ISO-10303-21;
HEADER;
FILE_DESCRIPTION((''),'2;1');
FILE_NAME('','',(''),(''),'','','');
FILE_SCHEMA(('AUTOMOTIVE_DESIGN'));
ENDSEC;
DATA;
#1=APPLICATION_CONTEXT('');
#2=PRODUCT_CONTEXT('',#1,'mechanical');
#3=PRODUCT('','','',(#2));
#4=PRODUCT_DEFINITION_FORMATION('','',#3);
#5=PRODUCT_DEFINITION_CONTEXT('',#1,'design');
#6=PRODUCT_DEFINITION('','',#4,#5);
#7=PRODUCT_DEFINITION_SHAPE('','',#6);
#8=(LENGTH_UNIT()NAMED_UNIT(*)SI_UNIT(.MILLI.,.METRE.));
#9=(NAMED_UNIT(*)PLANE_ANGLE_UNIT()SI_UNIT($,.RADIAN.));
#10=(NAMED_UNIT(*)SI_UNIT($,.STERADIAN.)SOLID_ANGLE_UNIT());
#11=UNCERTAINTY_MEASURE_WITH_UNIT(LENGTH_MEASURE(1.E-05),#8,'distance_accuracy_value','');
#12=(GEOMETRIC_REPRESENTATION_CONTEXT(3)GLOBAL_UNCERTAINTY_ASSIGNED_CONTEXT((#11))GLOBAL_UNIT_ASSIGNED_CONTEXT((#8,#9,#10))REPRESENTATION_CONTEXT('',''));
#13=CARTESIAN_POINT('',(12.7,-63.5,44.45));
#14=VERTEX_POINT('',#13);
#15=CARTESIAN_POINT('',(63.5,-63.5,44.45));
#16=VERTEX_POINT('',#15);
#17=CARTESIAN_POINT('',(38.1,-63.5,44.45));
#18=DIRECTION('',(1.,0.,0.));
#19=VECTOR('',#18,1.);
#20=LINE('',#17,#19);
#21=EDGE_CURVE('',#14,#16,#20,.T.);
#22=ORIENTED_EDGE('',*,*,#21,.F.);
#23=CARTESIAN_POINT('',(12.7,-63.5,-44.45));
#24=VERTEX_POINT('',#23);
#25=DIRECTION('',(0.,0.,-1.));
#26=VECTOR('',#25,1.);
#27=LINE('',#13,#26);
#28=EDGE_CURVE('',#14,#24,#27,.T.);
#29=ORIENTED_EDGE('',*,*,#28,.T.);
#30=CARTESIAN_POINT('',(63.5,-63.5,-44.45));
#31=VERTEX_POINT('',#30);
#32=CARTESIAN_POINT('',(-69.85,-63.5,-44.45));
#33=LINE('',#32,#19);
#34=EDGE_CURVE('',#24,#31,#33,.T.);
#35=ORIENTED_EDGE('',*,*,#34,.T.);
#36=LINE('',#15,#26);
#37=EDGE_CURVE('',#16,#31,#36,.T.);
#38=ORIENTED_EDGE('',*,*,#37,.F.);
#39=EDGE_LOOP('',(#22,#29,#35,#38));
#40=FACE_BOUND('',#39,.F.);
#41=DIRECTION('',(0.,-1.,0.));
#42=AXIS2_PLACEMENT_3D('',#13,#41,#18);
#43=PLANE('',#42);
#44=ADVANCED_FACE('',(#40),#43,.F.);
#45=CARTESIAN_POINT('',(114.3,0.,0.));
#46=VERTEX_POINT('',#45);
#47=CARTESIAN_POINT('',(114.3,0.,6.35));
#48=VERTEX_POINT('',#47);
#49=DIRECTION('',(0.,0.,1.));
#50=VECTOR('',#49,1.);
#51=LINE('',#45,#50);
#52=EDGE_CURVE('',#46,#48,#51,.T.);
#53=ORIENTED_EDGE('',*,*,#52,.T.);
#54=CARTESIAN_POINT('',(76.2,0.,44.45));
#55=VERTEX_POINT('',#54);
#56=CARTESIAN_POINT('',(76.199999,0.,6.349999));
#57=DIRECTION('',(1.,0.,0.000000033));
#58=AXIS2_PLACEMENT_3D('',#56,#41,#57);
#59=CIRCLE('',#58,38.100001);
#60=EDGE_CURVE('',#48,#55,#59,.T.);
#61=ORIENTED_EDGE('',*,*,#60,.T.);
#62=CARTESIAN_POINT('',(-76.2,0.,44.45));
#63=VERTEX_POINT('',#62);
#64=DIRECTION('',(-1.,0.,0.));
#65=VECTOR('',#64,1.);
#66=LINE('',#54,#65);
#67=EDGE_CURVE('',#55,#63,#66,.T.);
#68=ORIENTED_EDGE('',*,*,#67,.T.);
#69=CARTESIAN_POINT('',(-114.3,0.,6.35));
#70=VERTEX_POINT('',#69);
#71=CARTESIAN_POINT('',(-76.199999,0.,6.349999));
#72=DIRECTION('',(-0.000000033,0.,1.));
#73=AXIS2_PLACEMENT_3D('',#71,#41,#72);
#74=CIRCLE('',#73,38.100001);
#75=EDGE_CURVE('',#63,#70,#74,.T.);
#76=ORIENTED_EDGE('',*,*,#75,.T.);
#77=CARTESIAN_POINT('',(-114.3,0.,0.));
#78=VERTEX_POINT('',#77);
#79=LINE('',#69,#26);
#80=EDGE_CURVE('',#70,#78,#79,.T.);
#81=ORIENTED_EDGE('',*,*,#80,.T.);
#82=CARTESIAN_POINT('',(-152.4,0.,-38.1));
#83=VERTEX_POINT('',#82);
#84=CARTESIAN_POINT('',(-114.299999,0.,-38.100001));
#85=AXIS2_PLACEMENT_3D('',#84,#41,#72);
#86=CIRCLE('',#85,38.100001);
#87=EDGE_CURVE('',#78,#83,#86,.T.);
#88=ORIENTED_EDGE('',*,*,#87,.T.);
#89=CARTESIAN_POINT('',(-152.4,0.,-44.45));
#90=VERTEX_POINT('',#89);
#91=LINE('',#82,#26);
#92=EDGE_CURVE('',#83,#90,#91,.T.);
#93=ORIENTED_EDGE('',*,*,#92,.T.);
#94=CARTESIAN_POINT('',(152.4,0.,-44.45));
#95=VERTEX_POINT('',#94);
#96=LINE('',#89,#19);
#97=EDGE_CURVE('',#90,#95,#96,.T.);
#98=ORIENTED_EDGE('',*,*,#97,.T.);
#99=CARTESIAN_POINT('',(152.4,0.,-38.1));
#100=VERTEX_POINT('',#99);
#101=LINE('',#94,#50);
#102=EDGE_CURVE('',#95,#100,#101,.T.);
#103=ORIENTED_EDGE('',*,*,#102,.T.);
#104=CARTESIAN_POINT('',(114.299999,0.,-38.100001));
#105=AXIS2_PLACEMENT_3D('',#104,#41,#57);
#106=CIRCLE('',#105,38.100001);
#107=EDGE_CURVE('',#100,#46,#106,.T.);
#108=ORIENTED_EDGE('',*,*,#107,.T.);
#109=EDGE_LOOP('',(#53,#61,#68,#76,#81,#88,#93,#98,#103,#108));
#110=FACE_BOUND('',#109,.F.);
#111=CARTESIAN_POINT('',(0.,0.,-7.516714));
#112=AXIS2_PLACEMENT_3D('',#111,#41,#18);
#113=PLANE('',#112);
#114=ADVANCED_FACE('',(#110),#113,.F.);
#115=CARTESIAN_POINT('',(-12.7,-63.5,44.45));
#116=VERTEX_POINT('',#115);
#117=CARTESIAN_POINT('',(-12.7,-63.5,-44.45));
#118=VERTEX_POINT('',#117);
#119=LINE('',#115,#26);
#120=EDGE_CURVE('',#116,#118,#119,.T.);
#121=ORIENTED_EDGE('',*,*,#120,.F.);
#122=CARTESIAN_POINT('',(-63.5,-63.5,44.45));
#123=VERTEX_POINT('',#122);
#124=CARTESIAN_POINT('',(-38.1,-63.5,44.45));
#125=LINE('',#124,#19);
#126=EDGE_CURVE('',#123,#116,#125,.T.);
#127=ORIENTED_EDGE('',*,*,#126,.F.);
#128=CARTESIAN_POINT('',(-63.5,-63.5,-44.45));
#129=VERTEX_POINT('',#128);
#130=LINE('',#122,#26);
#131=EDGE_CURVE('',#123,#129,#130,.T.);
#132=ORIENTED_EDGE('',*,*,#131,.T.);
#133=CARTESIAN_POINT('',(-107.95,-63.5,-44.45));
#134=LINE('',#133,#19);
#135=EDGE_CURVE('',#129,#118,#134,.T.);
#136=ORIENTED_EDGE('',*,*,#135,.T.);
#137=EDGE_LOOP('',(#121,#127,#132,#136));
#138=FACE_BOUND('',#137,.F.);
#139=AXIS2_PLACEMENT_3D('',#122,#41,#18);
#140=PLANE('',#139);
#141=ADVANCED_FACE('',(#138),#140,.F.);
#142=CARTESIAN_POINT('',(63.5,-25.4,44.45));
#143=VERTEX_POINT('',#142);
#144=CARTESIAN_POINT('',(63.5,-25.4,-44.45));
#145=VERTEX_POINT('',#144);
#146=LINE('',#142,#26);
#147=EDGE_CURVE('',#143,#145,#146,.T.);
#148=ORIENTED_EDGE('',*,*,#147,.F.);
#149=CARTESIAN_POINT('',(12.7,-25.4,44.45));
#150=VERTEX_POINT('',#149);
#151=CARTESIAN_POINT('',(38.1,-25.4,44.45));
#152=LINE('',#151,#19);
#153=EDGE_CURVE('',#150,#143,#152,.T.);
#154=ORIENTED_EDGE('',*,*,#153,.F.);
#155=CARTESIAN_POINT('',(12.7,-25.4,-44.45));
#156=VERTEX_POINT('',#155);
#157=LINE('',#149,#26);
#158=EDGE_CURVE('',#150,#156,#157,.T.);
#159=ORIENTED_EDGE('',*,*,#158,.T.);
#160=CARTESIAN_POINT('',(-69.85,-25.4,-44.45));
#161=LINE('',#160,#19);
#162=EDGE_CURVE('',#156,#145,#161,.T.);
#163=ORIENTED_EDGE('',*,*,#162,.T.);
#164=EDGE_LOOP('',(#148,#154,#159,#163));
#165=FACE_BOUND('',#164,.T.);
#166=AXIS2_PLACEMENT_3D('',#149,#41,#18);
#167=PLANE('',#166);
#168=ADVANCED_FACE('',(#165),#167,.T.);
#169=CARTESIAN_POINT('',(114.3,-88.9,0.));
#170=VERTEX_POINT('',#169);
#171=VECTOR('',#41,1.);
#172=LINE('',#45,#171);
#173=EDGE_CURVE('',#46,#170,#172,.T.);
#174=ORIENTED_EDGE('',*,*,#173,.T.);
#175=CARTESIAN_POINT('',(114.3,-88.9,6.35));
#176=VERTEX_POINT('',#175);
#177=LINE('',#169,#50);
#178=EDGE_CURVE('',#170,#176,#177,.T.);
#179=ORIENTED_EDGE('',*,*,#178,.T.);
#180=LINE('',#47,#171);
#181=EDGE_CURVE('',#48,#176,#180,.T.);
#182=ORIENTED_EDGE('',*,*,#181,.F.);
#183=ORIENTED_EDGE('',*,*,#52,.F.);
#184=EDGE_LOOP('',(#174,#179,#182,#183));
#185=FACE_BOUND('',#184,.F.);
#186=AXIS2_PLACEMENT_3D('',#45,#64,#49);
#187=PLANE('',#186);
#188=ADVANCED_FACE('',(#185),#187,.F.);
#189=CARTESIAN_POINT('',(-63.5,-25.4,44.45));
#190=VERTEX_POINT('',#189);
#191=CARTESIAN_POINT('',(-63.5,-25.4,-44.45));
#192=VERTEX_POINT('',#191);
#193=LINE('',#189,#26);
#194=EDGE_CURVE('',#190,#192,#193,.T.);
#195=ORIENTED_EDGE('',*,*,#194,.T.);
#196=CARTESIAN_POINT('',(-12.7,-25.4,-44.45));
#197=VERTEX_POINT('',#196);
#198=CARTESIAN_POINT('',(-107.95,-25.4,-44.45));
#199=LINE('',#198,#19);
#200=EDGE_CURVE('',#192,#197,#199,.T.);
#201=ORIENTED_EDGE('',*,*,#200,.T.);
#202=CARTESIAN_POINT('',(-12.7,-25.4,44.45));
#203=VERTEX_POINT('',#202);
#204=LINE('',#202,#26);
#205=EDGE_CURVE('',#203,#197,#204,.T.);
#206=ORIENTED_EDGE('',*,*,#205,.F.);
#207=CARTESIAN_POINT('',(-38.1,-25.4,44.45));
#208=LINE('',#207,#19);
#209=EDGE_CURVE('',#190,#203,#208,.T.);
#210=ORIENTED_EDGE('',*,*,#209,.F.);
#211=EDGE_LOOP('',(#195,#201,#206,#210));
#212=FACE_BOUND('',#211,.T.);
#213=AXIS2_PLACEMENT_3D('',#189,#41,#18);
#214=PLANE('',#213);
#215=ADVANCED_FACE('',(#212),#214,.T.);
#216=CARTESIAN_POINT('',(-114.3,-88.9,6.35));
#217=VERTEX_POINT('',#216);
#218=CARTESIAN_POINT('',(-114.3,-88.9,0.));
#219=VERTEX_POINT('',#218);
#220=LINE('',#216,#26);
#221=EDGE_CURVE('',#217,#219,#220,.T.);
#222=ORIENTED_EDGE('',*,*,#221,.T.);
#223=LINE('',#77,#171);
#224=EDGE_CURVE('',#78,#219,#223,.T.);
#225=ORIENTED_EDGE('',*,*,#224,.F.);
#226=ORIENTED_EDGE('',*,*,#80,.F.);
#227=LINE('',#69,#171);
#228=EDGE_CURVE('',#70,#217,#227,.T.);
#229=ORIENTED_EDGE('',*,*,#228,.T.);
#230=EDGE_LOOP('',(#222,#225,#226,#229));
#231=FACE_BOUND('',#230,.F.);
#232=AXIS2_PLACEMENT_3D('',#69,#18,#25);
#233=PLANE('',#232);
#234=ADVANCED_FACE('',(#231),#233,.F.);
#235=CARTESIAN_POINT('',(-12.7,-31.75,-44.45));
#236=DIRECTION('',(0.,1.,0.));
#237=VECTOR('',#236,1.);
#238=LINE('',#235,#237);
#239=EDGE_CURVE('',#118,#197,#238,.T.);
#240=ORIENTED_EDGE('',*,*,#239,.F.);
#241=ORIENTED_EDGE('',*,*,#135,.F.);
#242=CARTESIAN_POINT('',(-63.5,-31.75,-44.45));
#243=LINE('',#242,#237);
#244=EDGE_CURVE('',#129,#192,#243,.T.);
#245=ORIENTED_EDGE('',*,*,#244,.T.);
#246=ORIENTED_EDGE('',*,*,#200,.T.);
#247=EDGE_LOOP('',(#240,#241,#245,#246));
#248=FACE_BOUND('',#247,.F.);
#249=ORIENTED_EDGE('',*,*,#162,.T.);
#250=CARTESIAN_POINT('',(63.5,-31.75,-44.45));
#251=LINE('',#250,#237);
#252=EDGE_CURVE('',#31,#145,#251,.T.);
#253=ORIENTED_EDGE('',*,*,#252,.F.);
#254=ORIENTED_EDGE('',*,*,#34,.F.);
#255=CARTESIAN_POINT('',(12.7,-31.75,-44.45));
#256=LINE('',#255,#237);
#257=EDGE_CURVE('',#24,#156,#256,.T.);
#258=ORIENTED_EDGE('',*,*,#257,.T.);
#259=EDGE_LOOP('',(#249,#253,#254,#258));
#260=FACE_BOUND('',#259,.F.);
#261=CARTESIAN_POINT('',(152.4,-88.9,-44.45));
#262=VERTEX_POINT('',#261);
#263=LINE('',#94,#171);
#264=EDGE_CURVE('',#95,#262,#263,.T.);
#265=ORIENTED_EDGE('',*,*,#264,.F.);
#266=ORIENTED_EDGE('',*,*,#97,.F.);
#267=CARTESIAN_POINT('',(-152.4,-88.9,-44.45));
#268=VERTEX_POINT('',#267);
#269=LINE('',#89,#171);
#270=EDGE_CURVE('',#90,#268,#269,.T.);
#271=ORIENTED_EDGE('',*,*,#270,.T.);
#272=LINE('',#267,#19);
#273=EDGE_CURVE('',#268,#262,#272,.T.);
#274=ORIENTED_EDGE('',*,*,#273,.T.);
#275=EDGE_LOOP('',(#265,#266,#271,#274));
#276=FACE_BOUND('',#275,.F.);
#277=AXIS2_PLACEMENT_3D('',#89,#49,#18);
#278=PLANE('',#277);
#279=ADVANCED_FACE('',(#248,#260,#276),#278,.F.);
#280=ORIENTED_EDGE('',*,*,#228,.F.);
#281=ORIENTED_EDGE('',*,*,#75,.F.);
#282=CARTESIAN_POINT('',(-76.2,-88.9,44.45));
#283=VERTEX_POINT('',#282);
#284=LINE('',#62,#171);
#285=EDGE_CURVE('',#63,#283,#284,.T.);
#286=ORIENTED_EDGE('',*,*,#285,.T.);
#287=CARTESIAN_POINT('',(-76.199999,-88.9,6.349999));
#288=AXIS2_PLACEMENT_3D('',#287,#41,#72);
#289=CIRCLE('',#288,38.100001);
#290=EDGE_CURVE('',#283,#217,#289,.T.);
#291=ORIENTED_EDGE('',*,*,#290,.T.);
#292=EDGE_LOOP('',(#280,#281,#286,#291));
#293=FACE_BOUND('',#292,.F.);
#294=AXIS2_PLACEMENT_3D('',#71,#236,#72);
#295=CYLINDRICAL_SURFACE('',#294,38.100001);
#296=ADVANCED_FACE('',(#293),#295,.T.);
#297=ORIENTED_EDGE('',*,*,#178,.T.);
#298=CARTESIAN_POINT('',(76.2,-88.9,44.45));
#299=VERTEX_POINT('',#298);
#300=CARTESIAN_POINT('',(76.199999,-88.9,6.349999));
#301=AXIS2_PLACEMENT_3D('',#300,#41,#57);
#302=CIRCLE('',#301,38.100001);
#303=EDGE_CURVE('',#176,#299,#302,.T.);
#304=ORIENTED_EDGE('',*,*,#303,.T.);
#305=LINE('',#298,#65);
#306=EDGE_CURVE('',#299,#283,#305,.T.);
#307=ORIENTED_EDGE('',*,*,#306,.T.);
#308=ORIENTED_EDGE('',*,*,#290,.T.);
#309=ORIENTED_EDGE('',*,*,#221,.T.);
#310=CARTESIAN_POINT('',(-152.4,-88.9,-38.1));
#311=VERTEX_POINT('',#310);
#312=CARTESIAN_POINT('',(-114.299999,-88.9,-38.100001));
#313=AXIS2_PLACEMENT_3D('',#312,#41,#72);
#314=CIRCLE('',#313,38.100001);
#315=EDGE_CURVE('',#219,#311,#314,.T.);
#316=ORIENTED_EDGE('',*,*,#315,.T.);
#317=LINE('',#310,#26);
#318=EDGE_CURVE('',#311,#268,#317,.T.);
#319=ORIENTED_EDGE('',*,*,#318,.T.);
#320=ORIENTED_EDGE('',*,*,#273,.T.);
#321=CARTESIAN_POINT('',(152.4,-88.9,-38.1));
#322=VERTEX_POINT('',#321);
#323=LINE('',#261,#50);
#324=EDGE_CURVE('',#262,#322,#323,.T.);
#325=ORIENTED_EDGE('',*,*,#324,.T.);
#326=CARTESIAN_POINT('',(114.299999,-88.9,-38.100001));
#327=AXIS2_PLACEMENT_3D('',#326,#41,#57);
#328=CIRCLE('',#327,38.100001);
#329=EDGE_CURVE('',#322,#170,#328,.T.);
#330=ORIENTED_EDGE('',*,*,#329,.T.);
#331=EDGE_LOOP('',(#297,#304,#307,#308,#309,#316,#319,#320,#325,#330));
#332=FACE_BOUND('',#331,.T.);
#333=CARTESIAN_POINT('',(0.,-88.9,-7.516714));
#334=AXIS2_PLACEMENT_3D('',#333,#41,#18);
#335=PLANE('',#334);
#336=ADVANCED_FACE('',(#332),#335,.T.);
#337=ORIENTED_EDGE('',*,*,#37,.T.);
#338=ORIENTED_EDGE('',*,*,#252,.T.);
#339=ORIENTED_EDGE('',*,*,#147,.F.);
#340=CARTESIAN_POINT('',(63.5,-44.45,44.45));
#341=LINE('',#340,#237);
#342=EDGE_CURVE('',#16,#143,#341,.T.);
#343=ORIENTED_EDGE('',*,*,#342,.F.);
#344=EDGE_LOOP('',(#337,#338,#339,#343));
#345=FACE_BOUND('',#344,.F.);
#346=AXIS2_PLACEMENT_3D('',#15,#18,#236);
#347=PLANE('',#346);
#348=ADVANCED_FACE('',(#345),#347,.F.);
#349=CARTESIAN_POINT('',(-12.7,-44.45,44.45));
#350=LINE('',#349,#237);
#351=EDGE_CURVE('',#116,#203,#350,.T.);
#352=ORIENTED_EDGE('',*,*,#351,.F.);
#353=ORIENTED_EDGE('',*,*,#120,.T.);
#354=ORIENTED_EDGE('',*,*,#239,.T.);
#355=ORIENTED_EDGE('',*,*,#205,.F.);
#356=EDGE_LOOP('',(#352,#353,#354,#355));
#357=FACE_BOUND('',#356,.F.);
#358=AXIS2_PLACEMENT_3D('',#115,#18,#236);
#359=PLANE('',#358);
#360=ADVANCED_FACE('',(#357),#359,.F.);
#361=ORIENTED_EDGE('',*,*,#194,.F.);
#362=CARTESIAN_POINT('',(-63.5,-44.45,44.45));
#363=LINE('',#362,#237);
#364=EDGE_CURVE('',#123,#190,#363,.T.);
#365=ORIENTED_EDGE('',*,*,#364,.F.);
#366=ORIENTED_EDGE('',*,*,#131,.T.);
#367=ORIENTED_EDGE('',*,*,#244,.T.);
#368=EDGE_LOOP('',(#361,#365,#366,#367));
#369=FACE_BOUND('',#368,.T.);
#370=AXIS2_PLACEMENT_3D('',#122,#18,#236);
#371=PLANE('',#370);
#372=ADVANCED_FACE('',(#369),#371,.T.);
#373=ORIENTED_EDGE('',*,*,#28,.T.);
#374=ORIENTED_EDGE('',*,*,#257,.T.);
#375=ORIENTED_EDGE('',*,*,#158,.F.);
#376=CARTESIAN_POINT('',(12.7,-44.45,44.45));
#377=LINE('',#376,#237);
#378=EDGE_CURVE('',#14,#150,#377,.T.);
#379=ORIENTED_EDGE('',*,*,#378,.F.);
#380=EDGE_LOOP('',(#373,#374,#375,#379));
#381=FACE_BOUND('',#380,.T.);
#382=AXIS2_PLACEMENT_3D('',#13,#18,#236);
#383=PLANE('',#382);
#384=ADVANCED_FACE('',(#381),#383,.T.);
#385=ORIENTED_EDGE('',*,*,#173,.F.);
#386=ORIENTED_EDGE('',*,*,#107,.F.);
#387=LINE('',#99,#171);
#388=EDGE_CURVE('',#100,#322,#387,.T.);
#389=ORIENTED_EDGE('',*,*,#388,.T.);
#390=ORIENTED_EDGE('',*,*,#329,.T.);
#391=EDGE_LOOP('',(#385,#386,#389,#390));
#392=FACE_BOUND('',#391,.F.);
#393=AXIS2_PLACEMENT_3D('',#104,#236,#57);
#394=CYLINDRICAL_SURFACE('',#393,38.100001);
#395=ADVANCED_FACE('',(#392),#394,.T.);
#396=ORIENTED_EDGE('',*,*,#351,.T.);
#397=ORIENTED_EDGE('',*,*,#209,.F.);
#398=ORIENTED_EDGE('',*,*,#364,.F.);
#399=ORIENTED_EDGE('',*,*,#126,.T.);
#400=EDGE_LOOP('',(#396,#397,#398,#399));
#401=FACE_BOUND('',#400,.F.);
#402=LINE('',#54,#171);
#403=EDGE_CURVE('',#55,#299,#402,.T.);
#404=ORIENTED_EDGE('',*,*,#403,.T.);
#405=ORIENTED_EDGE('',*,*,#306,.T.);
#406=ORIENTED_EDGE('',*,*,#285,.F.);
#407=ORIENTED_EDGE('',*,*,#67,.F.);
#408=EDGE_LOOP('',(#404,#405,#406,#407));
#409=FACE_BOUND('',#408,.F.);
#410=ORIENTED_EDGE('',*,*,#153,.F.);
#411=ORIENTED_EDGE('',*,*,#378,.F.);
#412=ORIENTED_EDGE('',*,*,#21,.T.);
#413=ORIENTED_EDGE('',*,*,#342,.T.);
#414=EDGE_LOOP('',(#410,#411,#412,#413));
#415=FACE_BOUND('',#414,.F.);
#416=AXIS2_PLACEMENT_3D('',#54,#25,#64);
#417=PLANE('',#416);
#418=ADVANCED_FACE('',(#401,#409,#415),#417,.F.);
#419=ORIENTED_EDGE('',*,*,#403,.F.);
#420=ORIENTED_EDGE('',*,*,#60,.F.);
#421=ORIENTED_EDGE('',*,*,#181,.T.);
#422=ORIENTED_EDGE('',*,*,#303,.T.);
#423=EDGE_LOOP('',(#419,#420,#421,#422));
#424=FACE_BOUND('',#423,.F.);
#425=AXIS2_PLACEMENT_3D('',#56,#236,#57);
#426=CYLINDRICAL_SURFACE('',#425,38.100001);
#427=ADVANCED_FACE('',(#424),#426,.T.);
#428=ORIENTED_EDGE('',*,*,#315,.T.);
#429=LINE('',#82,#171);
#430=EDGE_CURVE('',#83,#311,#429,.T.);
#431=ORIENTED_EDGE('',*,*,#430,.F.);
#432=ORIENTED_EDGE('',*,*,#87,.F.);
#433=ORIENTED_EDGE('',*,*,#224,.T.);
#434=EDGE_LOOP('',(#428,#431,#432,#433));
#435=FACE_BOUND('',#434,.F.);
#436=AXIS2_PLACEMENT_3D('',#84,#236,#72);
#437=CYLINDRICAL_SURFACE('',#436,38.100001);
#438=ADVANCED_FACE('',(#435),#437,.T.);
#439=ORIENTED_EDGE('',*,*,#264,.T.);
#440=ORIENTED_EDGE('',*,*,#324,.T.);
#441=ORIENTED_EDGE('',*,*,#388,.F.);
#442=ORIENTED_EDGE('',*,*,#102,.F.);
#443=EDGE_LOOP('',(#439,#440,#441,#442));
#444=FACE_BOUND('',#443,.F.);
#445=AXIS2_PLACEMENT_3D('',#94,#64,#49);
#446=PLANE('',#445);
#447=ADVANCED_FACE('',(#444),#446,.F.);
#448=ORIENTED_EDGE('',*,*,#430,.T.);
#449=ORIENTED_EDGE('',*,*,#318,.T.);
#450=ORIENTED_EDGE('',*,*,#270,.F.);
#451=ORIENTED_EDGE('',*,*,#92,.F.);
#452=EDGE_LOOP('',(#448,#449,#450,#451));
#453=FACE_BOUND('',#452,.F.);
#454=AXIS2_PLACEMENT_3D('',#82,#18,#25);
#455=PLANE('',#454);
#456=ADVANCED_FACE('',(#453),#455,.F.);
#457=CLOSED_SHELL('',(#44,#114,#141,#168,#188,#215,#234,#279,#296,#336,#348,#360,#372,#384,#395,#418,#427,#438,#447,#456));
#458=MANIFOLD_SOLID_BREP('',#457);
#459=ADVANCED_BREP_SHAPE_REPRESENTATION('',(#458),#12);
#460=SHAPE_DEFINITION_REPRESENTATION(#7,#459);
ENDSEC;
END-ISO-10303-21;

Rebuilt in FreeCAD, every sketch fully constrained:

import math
import FreeCAD as App
import Part
import Sketcher
from FreeCAD import Vector
Q = App.Units.Quantity


def add_polygon(sketch, points):
    """Adds a closed chain of lines whose ends are joined by coincident constraints."""
    first, n = sketch.GeometryCount, len(points)
    for a, b in zip(points, points[1:] + points[:1]):
        sketch.addGeometry(Part.LineSegment(App.Vector(*a, 0), App.Vector(*b, 0)), False)
    for i in range(n):
        sketch.addConstraint(Sketcher.Constraint("Coincident", first + i, 2, first + (i + 1) % n, 1))

doc = App.newDocument("Part")
body = doc.addObject("PartDesign::Body", "Body")

sketch1 = body.newObject("Sketcher::SketchObject", "Sketch")
sketch1.AttachmentSupport = (doc.getObject("XZ_Plane"), [""])
sketch1.MapMode = "FlatFace"
sketch1.addGeometry(Part.LineSegment(Vector(-152.4, -44.45, 0), Vector(152.4, -44.45, 0)), False)
sketch1.addGeometry(Part.LineSegment(Vector(152.4, -44.45, 0), Vector(152.4, -38.1, 0)), False)
sketch1.addGeometry(Part.ArcOfCircle(Part.Circle(Vector(114.299999, -38.100001, 0), Vector(0, 0, 1), 38.100001), math.radians(0.000002), math.radians(89.999998)), False)
sketch1.addGeometry(Part.LineSegment(Vector(114.3, 0, 0), Vector(114.3, 6.35, 0)), False)
sketch1.addGeometry(Part.ArcOfCircle(Part.Circle(Vector(76.199999, 6.349999, 0), Vector(0, 0, 1), 38.100001), math.radians(0.000002), math.radians(89.999998)), False)
sketch1.addGeometry(Part.LineSegment(Vector(76.2, 44.45, 0), Vector(-76.2, 44.45, 0)), False)
sketch1.addGeometry(Part.ArcOfCircle(Part.Circle(Vector(-76.199999, 6.349999, 0), Vector(0, 0, 1), 38.100001), math.radians(90.000002), math.radians(179.999998)), False)
sketch1.addGeometry(Part.LineSegment(Vector(-114.3, 6.35, 0), Vector(-114.3, 0, 0)), False)
sketch1.addGeometry(Part.ArcOfCircle(Part.Circle(Vector(-114.299999, -38.100001, 0), Vector(0, 0, 1), 38.100001), math.radians(90.000002), math.radians(179.999998)), False)
sketch1.addGeometry(Part.LineSegment(Vector(-152.4, -38.1, 0), Vector(-152.4, -44.45, 0)), False)
sketch1.addConstraint(Sketcher.Constraint("Coincident", 0, 2, 1, 1))
sketch1.addConstraint(Sketcher.Constraint("Tangent", 1, 2, 2, 1))
sketch1.addConstraint(Sketcher.Constraint("Coincident", 2, 2, 3, 1))
sketch1.addConstraint(Sketcher.Constraint("Tangent", 3, 2, 4, 1))
sketch1.addConstraint(Sketcher.Constraint("Tangent", 4, 2, 5, 1))
sketch1.addConstraint(Sketcher.Constraint("Tangent", 5, 2, 6, 1))
sketch1.addConstraint(Sketcher.Constraint("Tangent", 6, 2, 7, 1))
sketch1.addConstraint(Sketcher.Constraint("Coincident", 7, 2, 8, 1))
sketch1.addConstraint(Sketcher.Constraint("Tangent", 8, 2, 9, 1))
sketch1.addConstraint(Sketcher.Constraint("Coincident", 9, 2, 0, 1))
sketch1.addConstraint(Sketcher.Constraint("Horizontal", 0))
sketch1.addConstraint(Sketcher.Constraint("Vertical", 1))
sketch1.addConstraint(Sketcher.Constraint("Vertical", 3))
sketch1.addConstraint(Sketcher.Constraint("Horizontal", 5))
sketch1.addConstraint(Sketcher.Constraint("Vertical", 7))
sketch1.addConstraint(Sketcher.Constraint("Vertical", 9))
sketch1.addConstraint(Sketcher.Constraint("Equal", 2, 4))
sketch1.addConstraint(Sketcher.Constraint("Equal", 4, 6))
sketch1.addConstraint(Sketcher.Constraint("Equal", 6, 8))
sketch1.addConstraint(Sketcher.Constraint("Symmetric", 2, 2, 7, 2, -1, 1))
sketch1.addConstraint(Sketcher.Constraint("Symmetric", 2, 3, 8, 3, -2))
sketch1.addConstraint(Sketcher.Constraint("Vertical", 8, 3, 6, 2))
sketch1.addConstraint(Sketcher.Constraint("Equal", 1, 3))
sketch1.addConstraint(Sketcher.Constraint("Radius", 2, Q("1.5 in")))
sketch1.addConstraint(Sketcher.Constraint("DistanceX", 0, 1, 0, 2, Q("12 in")))
sketch1.addConstraint(Sketcher.Constraint("DistanceY", 0, 2, 4, 3, Q("2 in")))
pad1 = body.newObject("PartDesign::Pad", "Pad")
pad1.Profile = sketch1
pad1.Length = Q("3.5 in")

sketch2 = body.newObject("Sketcher::SketchObject", "Sketch001")
sketch2.AttachmentSupport = (doc.getObject("XY_Plane"), [""])
sketch2.MapMode = "FlatFace"
sketch2.AttachmentOffset = App.Placement(Vector(0, 0, 1.75 * 25.4), App.Rotation())
add_polygon(sketch2, [(-63.5, -25.4), (-63.5, -63.5), (-12.7, -63.5), (-12.7, -25.4)])
add_polygon(sketch2, [(12.7, -25.4), (12.7, -63.5), (63.5, -63.5), (63.5, -25.4)])
sketch2.addConstraint(Sketcher.Constraint("Vertical", 0))
sketch2.addConstraint(Sketcher.Constraint("Horizontal", 1))
sketch2.addConstraint(Sketcher.Constraint("Vertical", 2))
sketch2.addConstraint(Sketcher.Constraint("Horizontal", 3))
sketch2.addConstraint(Sketcher.Constraint("Vertical", 4))
sketch2.addConstraint(Sketcher.Constraint("Horizontal", 5))
sketch2.addConstraint(Sketcher.Constraint("Vertical", 6))
sketch2.addConstraint(Sketcher.Constraint("Horizontal", 7))
sketch2.addConstraint(Sketcher.Constraint("Symmetric", 1, 2, 4, 2, -2))
sketch2.addConstraint(Sketcher.Constraint("Symmetric", 3, 2, 6, 2, -2))
sketch2.addConstraint(Sketcher.Constraint("DistanceX", 1, 1, 1, 2, Q("2 in")))
sketch2.addConstraint(Sketcher.Constraint("DistanceY", 0, 2, 0, 1, Q("1.5 in")))
sketch2.addConstraint(Sketcher.Constraint("DistanceY", 2, 2, -1, 1, Q("1 in")))
sketch2.addConstraint(Sketcher.Constraint("DistanceX", 1, 2, 4, 2, Q("1 in")))
pocket1 = body.newObject("PartDesign::Pocket", "Pocket")
pocket1.Profile = sketch2
pocket1.Type = "ThroughAll"

doc.recompute()
